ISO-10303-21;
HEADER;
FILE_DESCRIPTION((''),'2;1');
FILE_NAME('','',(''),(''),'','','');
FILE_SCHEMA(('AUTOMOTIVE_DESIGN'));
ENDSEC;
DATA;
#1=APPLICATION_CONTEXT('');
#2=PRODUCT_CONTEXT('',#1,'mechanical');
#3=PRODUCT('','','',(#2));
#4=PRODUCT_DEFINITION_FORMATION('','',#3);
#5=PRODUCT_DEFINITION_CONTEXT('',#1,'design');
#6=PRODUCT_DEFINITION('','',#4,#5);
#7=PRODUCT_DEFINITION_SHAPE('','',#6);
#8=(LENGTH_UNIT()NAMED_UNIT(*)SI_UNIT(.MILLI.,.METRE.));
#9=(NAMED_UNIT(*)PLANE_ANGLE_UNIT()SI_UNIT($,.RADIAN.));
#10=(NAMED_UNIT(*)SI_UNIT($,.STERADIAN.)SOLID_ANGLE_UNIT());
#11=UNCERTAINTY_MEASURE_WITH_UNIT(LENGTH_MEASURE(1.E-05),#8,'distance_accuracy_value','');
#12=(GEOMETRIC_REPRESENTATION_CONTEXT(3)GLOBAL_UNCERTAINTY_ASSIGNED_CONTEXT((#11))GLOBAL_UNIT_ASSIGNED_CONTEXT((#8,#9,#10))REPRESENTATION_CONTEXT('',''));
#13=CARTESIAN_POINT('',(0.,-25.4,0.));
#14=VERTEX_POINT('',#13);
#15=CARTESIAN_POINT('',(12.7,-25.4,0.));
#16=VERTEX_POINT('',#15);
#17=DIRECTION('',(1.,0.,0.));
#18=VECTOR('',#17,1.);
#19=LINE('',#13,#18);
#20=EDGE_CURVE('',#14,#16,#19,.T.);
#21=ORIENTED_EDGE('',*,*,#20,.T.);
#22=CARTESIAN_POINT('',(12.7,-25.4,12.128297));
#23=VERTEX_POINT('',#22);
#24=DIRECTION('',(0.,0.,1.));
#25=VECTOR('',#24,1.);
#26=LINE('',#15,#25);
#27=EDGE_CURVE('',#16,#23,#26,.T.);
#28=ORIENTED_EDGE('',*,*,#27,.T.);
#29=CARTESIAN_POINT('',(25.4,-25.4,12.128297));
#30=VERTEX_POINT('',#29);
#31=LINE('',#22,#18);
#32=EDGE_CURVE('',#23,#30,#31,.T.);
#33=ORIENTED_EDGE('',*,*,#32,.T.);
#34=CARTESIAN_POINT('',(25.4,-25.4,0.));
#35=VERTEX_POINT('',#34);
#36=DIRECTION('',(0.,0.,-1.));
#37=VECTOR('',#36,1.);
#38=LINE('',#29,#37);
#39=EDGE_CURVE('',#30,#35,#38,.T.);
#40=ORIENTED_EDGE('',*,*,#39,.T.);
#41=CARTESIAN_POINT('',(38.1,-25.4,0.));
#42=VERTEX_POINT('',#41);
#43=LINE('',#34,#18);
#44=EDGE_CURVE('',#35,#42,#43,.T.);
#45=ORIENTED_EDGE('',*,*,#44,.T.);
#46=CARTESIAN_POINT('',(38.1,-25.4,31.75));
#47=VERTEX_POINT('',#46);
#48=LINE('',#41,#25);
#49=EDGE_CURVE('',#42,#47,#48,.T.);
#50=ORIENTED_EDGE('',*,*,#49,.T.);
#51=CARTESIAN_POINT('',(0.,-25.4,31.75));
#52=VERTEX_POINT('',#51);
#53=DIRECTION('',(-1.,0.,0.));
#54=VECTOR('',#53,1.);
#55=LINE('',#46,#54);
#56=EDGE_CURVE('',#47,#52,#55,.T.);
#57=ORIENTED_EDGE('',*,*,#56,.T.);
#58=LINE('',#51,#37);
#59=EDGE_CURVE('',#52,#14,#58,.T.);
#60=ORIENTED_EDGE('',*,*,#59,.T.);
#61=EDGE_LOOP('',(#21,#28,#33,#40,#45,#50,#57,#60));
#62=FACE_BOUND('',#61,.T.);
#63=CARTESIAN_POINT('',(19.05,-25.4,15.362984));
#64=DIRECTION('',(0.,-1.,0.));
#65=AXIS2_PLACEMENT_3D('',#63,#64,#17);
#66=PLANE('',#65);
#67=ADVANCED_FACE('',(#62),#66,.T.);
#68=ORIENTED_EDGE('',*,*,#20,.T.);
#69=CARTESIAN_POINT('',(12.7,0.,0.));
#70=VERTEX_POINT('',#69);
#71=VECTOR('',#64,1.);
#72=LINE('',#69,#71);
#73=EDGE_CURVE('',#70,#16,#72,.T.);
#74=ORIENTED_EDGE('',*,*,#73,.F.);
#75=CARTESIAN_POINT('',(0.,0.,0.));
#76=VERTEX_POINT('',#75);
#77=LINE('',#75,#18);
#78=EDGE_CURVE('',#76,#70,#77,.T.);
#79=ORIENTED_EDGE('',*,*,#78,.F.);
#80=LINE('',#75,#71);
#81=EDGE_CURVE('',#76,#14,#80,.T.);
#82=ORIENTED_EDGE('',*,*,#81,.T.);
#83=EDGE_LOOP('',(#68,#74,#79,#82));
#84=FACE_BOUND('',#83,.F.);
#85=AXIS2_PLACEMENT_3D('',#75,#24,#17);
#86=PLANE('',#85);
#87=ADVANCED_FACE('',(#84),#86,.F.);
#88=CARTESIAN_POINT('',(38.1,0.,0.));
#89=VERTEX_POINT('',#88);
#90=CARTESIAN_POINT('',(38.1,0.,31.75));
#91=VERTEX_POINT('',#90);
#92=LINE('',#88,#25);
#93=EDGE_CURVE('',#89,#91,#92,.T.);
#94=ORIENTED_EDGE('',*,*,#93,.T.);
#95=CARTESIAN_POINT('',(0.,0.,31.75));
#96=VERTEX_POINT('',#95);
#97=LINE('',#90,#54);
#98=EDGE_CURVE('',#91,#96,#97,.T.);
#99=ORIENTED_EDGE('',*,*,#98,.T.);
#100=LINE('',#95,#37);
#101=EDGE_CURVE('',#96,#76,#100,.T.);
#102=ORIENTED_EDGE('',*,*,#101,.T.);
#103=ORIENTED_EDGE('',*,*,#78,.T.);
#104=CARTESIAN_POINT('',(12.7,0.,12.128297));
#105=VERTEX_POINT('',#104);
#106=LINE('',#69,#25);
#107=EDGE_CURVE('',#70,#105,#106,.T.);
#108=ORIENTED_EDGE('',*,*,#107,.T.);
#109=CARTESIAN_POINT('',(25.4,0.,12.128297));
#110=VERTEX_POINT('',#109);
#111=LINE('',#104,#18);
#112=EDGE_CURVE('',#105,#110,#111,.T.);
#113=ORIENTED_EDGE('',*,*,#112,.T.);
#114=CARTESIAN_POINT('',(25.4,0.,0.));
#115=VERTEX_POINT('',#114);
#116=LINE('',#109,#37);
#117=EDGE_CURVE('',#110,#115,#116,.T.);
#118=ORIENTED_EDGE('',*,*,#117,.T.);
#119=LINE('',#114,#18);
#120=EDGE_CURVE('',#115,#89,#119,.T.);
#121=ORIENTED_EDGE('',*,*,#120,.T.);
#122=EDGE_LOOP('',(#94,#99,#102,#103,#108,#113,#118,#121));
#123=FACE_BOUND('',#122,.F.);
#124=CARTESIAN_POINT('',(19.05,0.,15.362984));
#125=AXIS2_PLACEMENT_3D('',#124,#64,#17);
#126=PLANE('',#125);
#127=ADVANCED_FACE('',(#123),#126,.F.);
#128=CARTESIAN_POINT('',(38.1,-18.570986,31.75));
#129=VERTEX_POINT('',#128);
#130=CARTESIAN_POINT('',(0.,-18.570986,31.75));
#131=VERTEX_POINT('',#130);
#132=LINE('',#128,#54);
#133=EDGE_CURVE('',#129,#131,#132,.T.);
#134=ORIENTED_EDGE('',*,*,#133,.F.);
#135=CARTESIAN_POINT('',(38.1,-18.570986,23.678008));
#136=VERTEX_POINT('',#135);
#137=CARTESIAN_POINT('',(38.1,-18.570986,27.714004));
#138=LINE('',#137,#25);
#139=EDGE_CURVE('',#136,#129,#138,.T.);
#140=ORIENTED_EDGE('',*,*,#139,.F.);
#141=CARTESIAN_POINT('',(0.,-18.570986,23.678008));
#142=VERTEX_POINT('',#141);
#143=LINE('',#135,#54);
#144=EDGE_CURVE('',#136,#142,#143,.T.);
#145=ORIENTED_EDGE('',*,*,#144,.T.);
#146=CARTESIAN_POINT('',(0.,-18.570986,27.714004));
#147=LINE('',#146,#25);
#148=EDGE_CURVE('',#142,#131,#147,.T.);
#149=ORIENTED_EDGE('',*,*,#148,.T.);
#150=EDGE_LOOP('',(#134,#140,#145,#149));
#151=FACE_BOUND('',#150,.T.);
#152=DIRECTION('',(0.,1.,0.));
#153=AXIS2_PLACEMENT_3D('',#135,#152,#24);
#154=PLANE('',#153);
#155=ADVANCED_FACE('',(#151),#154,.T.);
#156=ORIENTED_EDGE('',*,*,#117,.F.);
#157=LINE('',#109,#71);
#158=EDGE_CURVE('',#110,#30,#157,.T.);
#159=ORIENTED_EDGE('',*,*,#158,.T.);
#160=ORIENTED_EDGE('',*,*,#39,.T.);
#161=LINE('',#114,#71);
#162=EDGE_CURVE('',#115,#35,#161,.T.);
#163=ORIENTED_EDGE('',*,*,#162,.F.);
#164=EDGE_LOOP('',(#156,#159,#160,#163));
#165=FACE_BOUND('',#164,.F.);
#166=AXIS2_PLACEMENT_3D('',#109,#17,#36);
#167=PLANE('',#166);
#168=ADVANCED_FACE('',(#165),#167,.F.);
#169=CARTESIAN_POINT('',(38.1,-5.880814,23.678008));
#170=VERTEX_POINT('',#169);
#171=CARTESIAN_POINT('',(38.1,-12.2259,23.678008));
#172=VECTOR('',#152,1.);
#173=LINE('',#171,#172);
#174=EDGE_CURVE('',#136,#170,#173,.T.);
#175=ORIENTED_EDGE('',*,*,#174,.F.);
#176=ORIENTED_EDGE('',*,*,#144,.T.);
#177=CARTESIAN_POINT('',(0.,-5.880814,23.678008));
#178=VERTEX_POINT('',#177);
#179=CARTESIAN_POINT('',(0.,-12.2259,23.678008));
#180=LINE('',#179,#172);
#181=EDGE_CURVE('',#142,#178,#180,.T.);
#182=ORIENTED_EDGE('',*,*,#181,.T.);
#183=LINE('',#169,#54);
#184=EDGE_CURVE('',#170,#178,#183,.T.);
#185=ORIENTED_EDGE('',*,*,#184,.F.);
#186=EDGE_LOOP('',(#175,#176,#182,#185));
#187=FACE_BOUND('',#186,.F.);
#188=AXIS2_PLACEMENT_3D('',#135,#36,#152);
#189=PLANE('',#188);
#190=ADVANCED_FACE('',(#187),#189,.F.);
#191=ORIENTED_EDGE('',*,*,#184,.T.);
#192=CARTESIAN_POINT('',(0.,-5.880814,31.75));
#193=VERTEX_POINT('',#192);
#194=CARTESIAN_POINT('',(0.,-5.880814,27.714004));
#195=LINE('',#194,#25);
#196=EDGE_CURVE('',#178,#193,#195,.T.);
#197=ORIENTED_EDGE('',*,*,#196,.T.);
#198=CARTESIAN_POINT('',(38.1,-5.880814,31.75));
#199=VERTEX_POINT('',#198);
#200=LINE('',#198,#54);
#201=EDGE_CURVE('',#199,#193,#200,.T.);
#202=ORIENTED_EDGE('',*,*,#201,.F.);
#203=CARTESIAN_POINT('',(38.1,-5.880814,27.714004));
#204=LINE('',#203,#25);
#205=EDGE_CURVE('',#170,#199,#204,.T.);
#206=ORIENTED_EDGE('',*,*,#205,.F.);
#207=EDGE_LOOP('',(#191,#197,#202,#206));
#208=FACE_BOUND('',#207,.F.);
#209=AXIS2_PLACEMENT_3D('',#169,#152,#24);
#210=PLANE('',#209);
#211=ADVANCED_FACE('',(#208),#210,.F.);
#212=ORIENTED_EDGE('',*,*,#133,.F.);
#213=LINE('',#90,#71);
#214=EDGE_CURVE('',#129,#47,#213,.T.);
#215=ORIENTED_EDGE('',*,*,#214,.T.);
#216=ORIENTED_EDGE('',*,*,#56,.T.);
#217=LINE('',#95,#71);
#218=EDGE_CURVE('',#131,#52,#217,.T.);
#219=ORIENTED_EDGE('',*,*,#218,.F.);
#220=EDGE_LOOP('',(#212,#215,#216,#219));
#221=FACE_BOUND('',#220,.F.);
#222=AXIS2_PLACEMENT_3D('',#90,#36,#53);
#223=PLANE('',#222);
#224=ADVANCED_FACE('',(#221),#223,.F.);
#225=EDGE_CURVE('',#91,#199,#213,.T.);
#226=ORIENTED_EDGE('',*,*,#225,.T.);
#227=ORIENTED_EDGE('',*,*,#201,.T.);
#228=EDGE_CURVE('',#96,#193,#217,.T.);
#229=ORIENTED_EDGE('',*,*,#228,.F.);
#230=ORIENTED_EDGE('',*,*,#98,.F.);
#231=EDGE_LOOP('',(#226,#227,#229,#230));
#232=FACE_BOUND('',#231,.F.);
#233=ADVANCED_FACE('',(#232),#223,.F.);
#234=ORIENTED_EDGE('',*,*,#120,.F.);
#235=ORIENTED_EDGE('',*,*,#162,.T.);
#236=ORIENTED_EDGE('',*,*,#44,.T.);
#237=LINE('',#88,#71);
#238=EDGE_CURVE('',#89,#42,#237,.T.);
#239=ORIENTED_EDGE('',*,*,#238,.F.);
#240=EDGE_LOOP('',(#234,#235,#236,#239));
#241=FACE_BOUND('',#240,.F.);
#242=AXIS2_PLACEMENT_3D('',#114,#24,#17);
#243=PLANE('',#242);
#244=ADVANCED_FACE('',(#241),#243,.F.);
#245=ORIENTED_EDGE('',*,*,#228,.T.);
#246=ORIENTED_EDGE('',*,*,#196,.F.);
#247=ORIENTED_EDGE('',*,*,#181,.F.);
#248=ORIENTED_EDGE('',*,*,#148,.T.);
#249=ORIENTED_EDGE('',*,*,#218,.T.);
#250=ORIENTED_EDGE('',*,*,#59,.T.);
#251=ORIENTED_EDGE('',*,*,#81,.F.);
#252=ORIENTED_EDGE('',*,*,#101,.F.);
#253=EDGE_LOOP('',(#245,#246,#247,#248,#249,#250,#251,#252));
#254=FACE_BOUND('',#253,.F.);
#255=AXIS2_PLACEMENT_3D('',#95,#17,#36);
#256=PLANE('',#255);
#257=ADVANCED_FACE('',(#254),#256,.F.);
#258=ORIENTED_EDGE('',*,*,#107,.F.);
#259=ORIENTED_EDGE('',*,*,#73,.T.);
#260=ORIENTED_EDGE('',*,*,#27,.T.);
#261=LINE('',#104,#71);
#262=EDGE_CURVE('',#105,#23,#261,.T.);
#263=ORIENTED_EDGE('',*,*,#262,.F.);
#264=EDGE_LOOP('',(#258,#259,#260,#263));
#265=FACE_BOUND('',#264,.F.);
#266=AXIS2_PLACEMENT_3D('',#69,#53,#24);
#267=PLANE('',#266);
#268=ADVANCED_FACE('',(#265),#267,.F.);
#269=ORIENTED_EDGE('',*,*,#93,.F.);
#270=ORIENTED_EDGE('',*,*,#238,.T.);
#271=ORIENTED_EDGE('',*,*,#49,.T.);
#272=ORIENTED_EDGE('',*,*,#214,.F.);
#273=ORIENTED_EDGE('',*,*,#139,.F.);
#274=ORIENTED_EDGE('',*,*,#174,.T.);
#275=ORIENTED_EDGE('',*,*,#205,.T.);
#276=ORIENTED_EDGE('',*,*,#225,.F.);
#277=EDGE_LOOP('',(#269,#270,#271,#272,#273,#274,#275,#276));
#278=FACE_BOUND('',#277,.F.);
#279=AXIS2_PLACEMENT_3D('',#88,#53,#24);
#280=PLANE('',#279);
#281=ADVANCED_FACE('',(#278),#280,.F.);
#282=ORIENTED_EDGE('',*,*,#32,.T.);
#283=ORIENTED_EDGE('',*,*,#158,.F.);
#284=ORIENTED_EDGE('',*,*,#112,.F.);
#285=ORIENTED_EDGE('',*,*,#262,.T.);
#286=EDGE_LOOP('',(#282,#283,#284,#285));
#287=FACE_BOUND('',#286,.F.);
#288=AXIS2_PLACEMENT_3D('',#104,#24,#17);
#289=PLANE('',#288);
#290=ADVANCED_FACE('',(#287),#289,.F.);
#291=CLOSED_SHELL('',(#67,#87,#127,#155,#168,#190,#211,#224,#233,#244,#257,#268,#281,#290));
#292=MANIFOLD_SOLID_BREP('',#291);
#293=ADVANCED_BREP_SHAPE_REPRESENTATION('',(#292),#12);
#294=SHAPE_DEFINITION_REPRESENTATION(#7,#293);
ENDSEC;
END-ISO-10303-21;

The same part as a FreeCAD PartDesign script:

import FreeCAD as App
import Part
import Sketcher

V = App.Vector
Q = App.Units.Quantity


def add_polygon(sketch, points):
    """Adds a closed chain of lines whose ends are joined by coincident constraints."""
    first, n = sketch.GeometryCount, len(points)
    for a, b in zip(points, points[1:] + points[:1]):
        sketch.addGeometry(Part.LineSegment(App.Vector(*a, 0), App.Vector(*b, 0)), False)
    for i in range(n):
        sketch.addConstraint(Sketcher.Constraint("Coincident", first + i, 2, first + (i + 1) % n, 1))

doc = App.newDocument("Part")
params = doc.addObject("Spreadsheet::Sheet", "Params")
for row, (alias, value) in enumerate([
    ("sketch1_width", "0.5 in"),
    ("sketch1_height", "1.25 in"),
    ("pad1_length", "1 in"),
    ("pocket1_length", "1.5 in"),
], start=1):
    params.set(f"A{row}", alias)
    params.set(f"B{row}", "=" + value)
    params.setAlias(f"B{row}", alias)

body = doc.addObject("PartDesign::Body", "Body")

# Sketch on XZ plane
sketch1 = doc.addObject("Sketcher::SketchObject", "Sketch")
body.addObject(sketch1)
sketch1.AttachmentSupport = (doc.XZ_Plane, [""])
sketch1.MapMode = "FlatFace"
add_polygon(sketch1, [(0, 31.75), (0, 0), (12.7, 0), (12.7, 12.128297), (25.4, 12.128297), (25.4, 0), (38.1, 0), (38.1, 31.75)])  # lines 0-7
sketch1.addConstraint([
    Sketcher.Constraint("Vertical", 0),
    Sketcher.Constraint("Horizontal", 1),
    Sketcher.Constraint("Vertical", 2),
    Sketcher.Constraint("Horizontal", 3),
    Sketcher.Constraint("Vertical", 4),
    Sketcher.Constraint("Horizontal", 5),
    Sketcher.Constraint("Vertical", 6),
    Sketcher.Constraint("Horizontal", 7),
    Sketcher.Constraint("Coincident", 0, 2, -1, 1),
    Sketcher.Constraint("PointOnObject", 4, 2, -1),
    Sketcher.Constraint("Equal", 1, 3),
    Sketcher.Constraint("Equal", 3, 5),
    Sketcher.Constraint("DistanceX", 1, 1, 1, 2, Q("0.5 in")),
    Sketcher.Constraint("DistanceY", 0, 2, 0, 1, Q("1.25 in")),
    Sketcher.Constraint("DistanceY", 2, 1, 2, 2, 12.128297),
])
sketch1.setExpression("Constraints[20]", "Params.sketch1_width")
sketch1.setExpression("Constraints[21]", "Params.sketch1_height")
pad1 = doc.addObject("PartDesign::Pad", "Pad")
body.addObject(pad1)
pad1.Profile = sketch1
pad1.setExpression("Length", "Params.pad1_length")

# Sketch on YZ plane
sketch2 = doc.addObject("Sketcher::SketchObject", "Sketch001")
body.addObject(sketch2)
sketch2.AttachmentSupport = (doc.YZ_Plane, [""])
sketch2.MapMode = "FlatFace"
sketch2.AttachmentOffset = App.Placement(V(0, 0, 1.5 * 25.4), App.Rotation())
add_polygon(sketch2, [(-18.570986, 31.75), (-18.570986, 23.678008), (-5.880814, 23.678008), (-5.880814, 31.75)])  # lines 0-3
sketch2.addConstraint([
    Sketcher.Constraint("Vertical", 0),
    Sketcher.Constraint("Horizontal", 1),
    Sketcher.Constraint("Vertical", 2),
    Sketcher.Constraint("Horizontal", 3),
    Sketcher.Constraint("DistanceY", -1, 1, 2, 2, Q("1.25 in")),
    Sketcher.Constraint("DistanceX", 1, 1, 1, 2, 12.690172),
    Sketcher.Constraint("DistanceY", 0, 2, 0, 1, 8.071992),
    Sketcher.Constraint("DistanceX", 0, 2, -1, 1, 18.570986),
])
pocket1 = doc.addObject("PartDesign::Pocket", "Pocket")
body.addObject(pocket1)
pocket1.Profile = sketch2
pocket1.setExpression("Length", "Params.pocket1_length")

doc.recompute()
